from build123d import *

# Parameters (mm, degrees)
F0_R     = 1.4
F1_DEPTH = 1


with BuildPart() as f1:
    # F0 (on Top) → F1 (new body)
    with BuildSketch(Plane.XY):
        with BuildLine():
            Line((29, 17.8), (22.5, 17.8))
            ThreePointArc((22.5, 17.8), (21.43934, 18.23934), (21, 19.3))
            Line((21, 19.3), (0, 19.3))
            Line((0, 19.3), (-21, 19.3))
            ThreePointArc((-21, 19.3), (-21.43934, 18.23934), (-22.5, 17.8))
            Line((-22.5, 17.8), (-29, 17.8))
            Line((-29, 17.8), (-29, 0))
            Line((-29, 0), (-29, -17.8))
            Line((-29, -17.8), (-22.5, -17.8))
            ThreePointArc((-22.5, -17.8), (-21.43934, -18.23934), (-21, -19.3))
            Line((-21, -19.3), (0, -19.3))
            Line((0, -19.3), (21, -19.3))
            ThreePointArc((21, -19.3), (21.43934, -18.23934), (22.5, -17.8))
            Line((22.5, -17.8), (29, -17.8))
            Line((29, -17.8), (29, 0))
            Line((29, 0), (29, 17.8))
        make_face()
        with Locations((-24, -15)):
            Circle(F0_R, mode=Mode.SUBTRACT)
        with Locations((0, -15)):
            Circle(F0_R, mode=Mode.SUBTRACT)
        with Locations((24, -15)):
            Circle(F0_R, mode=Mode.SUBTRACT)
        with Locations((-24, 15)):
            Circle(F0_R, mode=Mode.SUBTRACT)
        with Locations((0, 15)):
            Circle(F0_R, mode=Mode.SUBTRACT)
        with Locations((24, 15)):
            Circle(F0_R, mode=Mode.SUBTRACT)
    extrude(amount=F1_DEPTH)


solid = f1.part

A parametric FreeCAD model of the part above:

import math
import FreeCAD as App
import Part
import Sketcher

V = App.Vector
Q = App.Units.Quantity

doc = App.newDocument("Part")
body = doc.addObject("PartDesign::Body", "Body")

sketch1 = body.newObject("Sketcher::SketchObject", "Sketch")
sketch1.AttachmentSupport = (doc.getObject("XY_Plane"), [""])
sketch1.MapMode = "FlatFace"
sketch1.addGeometry(Part.LineSegment(V(29, 17.8, 0), V(22.5, 17.8, 0)), False)
sketch1.addGeometry(Part.ArcOfCircle(Part.Circle(V(22.500001, 19.300001, 0), V(0, 0, 1), 1.500001), math.radians(-179.999978), math.radians(-90.000022)), False)
sketch1.addGeometry(Part.LineSegment(V(21, 19.3, 0), V(-21, 19.3, 0)), False)
sketch1.addGeometry(Part.ArcOfCircle(Part.Circle(V(-22.500001, 19.300001, 0), V(0, 0, 1), 1.500001), math.radians(-89.999978), math.radians(-0.000022)), False)
sketch1.addGeometry(Part.LineSegment(V(-22.5, 17.8, 0), V(-29, 17.8, 0)), False)
sketch1.addGeometry(Part.LineSegment(V(-29, 17.8, 0), V(-29, -17.8, 0)), False)
sketch1.addGeometry(Part.LineSegment(V(-29, -17.8, 0), V(-22.5, -17.8, 0)), False)
sketch1.addGeometry(Part.ArcOfCircle(Part.Circle(V(-22.500001, -19.300001, 0), V(0, 0, 1), 1.500001), math.radians(0.000022), math.radians(89.999978)), False)
sketch1.addGeometry(Part.LineSegment(V(-21, -19.3, 0), V(21, -19.3, 0)), False)
sketch1.addGeometry(Part.ArcOfCircle(Part.Circle(V(22.500001, -19.300001, 0), V(0, 0, 1), 1.500001), math.radians(90.000022), math.radians(179.999978)), False)
sketch1.addGeometry(Part.LineSegment(V(22.5, -17.8, 0), V(29, -17.8, 0)), False)
sketch1.addGeometry(Part.LineSegment(V(29, -17.8, 0), V(29, 17.8, 0)), False)
sketch1.addGeometry(Part.Circle(V(-24, -15, 0), V(0, 0, 1), 1.4), False)
sketch1.addGeometry(Part.Circle(V(0, -15, 0), V(0, 0, 1), 1.4), False)
sketch1.addGeometry(Part.Circle(V(24, -15, 0), V(0, 0, 1), 1.4), False)
sketch1.addGeometry(Part.Circle(V(-24, 15, 0), V(0, 0, 1), 1.4), False)
sketch1.addGeometry(Part.Circle(V(0, 15, 0), V(0, 0, 1), 1.4), False)
sketch1.addGeometry(Part.Circle(V(24, 15, 0), V(0, 0, 1), 1.4), False)
sketch1.addConstraint(Sketcher.Constraint("Tangent", 0, 2, 1, 2))
sketch1.addConstraint(Sketcher.Constraint("Coincident", 1, 1, 2, 1))
sketch1.addConstraint(Sketcher.Constraint("Coincident", 2, 2, 3, 2))
sketch1.addConstraint(Sketcher.Constraint("Tangent", 3, 1, 4, 1))
sketch1.addConstraint(Sketcher.Constraint("Coincident", 4, 2, 5, 1))
sketch1.addConstraint(Sketcher.Constraint("Coincident", 5, 2, 6, 1))
sketch1.addConstraint(Sketcher.Constraint("Tangent", 6, 2, 7, 2))
sketch1.addConstraint(Sketcher.Constraint("Coincident", 7, 1, 8, 1))
sketch1.addConstraint(Sketcher.Constraint("Coincident", 8, 2, 9, 2))
sketch1.addConstraint(Sketcher.Constraint("Tangent", 9, 1, 10, 1))
sketch1.addConstraint(Sketcher.Constraint("Coincident", 10, 2, 11, 1))
sketch1.addConstraint(Sketcher.Constraint("Coincident", 11, 2, 0, 1))
sketch1.addConstraint(Sketcher.Constraint("Horizontal", 0))
sketch1.addConstraint(Sketcher.Constraint("Horizontal", 2))
sketch1.addConstraint(Sketcher.Constraint("Horizontal", 4))
sketch1.addConstraint(Sketcher.Constraint("Vertical", 5))
sketch1.addConstraint(Sketcher.Constraint("Horizontal", 6))
sketch1.addConstraint(Sketcher.Constraint("Horizontal", 8))
sketch1.addConstraint(Sketcher.Constraint("Horizontal", 10))
sketch1.addConstraint(Sketcher.Constraint("Vertical", 11))
sketch1.addConstraint(Sketcher.Constraint("Equal", 1, 3))
sketch1.addConstraint(Sketcher.Constraint("Equal", 3, 7))
sketch1.addConstraint(Sketcher.Constraint("Equal", 7, 9))
sketch1.addConstraint(Sketcher.Constraint("Equal", 12, 13))
sketch1.addConstraint(Sketcher.Constraint("Equal", 13, 14))
sketch1.addConstraint(Sketcher.Constraint("Equal", 14, 15))
sketch1.addConstraint(Sketcher.Constraint("Equal", 15, 16))
sketch1.addConstraint(Sketcher.Constraint("Equal", 16, 17))
sketch1.addConstraint(Sketcher.Constraint("Symmetric", 1, 3, 7, 3, -1, 1))
sketch1.addConstraint(Sketcher.Constraint("Symmetric", 3, 3, 9, 3, -1, 1))
sketch1.addConstraint(Sketcher.Constraint("Symmetric", 14, 3, 15, 3, -1, 1))
sketch1.addConstraint(Sketcher.Constraint("Symmetric", 13, 3, 16, 3, -1, 1))
sketch1.addConstraint(Sketcher.Constraint("Symmetric", 12, 3, 17, 3, -1, 1))
sketch1.addConstraint(Sketcher.Constraint("Symmetric", 1, 3, 3, 3, -2))
sketch1.addConstraint(Sketcher.Constraint("Symmetric", 12, 3, 14, 3, -2))
sketch1.addConstraint(Sketcher.Constraint("PointOnObject", 13, 3, -2))
sketch1.addConstraint(Sketcher.Constraint("Horizontal", 12, 3, 13, 3))
sketch1.addConstraint(Sketcher.Constraint("Horizontal", 3, 3, 1, 1))
sketch1.addConstraint(Sketcher.Constraint("Horizontal", 9, 3, 7, 1))
sketch1.addConstraint(Sketcher.Constraint("Equal", 0, 4))
sketch1.addConstraint(Sketcher.Constraint("Diameter", 12, Q("2.8 mm")))
sketch1.addConstraint(Sketcher.Constraint("Radius", 1, Q("1.500001 mm")))
sketch1.addConstraint(Sketcher.Constraint("DistanceX", 2, 2, 2, 1, Q("42 mm")))
sketch1.addConstraint(Sketcher.Constraint("DistanceX", 0, 2, 0, 1, Q("6.5 mm")))
sketch1.addConstraint(Sketcher.Constraint("DistanceY", 5, 2, 5, 1, Q("35.6 mm")))
sketch1.addConstraint(Sketcher.Constraint("DistanceX", 12, 3, -1, 1, Q("24 mm")))
sketch1.addConstraint(Sketcher.Constraint("DistanceY", 12, 3, -1, 1, Q("15 mm")))
pad1 = body.newObject("PartDesign::Pad", "Pad")
pad1.Profile = sketch1
pad1.Length = 1

doc.recompute()
